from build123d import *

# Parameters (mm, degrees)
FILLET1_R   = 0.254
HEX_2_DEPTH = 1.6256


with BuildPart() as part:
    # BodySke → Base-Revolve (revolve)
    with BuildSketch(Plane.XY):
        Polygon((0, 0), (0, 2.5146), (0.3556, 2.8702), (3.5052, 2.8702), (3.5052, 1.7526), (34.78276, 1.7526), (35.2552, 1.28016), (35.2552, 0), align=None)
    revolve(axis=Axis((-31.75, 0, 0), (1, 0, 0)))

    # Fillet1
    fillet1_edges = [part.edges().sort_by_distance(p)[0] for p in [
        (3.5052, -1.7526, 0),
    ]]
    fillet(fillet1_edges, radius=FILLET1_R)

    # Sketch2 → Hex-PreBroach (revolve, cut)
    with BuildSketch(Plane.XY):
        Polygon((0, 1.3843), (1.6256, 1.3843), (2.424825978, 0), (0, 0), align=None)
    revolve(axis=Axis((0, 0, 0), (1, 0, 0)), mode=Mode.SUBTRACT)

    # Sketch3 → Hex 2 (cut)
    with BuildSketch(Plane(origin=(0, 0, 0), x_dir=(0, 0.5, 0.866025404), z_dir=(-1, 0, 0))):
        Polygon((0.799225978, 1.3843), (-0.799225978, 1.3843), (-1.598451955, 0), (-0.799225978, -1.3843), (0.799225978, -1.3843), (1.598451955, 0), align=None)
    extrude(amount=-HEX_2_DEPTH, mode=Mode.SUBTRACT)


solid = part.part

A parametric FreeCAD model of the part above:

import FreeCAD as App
import Part
import Sketcher
Q = App.Units.Quantity


def edges_at(feature, points):
    """Names of the edges that pass closest to the given points."""
    edges = feature.Shape.Edges
    near = lambda p: min(range(len(edges)), key=lambda i: edges[i].distToShape(Part.Vertex(*p))[0])
    return sorted({f"Edge{near(p) + 1}" for p in points})

doc = App.newDocument("Part")
body = doc.addObject("PartDesign::Body", "Body")

# Sketch on XY plane
sketch1 = body.newObject("Sketcher::SketchObject", "Sketch")
sketch1.AttachmentSupport = (doc.getObject("XY_Plane"), [""])
sketch1.MapMode = "FlatFace"
sketch1.addGeometry(Part.LineSegment(App.Vector(0, 2.5, 0), App.Vector(0, 0, 0)), False)
sketch1.addGeometry(Part.LineSegment(App.Vector(0, 0, 0), App.Vector(35.3, 0, 0)), False)
sketch1.addGeometry(Part.LineSegment(App.Vector(35.3, 0, 0), App.Vector(35.3, 1.3, 0)), False)
sketch1.addGeometry(Part.LineSegment(App.Vector(35.3, 1.3, 0), App.Vector(34.8, 1.8, 0)), False)
sketch1.addGeometry(Part.LineSegment(App.Vector(34.8, 1.8, 0), App.Vector(3.5, 1.8, 0)), False)
sketch1.addGeometry(Part.LineSegment(App.Vector(3.5, 1.8, 0), App.Vector(3.5, 2.9, 0)), False)
sketch1.addGeometry(Part.LineSegment(App.Vector(3.5, 2.9, 0), App.Vector(0.4, 2.9, 0)), False)
sketch1.addGeometry(Part.LineSegment(App.Vector(0.4, 2.9, 0), App.Vector(0, 2.5, 0)), False)
sketch1.addConstraint(Sketcher.Constraint("Coincident", 0, 2, 1, 1))
sketch1.addConstraint(Sketcher.Constraint("Coincident", 1, 2, 2, 1))
sketch1.addConstraint(Sketcher.Constraint("Coincident", 2, 2, 3, 1))
sketch1.addConstraint(Sketcher.Constraint("Coincident", 3, 2, 4, 1))
sketch1.addConstraint(Sketcher.Constraint("Coincident", 4, 2, 5, 1))
sketch1.addConstraint(Sketcher.Constraint("Coincident", 5, 2, 6, 1))
sketch1.addConstraint(Sketcher.Constraint("Coincident", 6, 2, 7, 1))
sketch1.addConstraint(Sketcher.Constraint("Coincident", 7, 2, 0, 1))
sketch1.addConstraint(Sketcher.Constraint("Vertical", 0))
sketch1.addConstraint(Sketcher.Constraint("Horizontal", 1))
sketch1.addConstraint(Sketcher.Constraint("Vertical", 2))
sketch1.addConstraint(Sketcher.Constraint("Horizontal", 4))
sketch1.addConstraint(Sketcher.Constraint("Vertical", 5))
sketch1.addConstraint(Sketcher.Constraint("Horizontal", 6))
sketch1.addConstraint(Sketcher.Constraint("Coincident", 0, 2, -1, 1))
sketch1.addConstraint(Sketcher.Constraint("Perpendicular", 3, 7))
sketch1.addConstraint(Sketcher.Constraint("Angle", 3, Q("135 deg")))
sketch1.addConstraint(Sketcher.Constraint("DistanceX", 1, 1, 1, 2, Q("1.388 in")))
sketch1.addConstraint(Sketcher.Constraint("DistanceX", 6, 2, 6, 1, Q("0.124 in")))
sketch1.addConstraint(Sketcher.Constraint("DistanceY", 0, 2, 0, 1, Q("0.099 in")))
sketch1.addConstraint(Sketcher.Constraint("DistanceY", 5, 1, 5, 2, Q("0.044 in")))
sketch1.addConstraint(Sketcher.Constraint("DistanceX", 4, 2, 2, 2, Q("1.25 in")))
sketch1.addConstraint(Sketcher.Constraint("DistanceX", 4, 2, 4, 1, Q("1.2314 in")))
revolution = body.newObject("PartDesign::Revolution", "Revolution")
revolution.Profile = sketch1
revolution.ReferenceAxis = (sketch1, ["H_Axis"])
revolution.Angle = 360
doc.recompute()

fillet = body.newObject("PartDesign::Fillet", "Fillet")
fillet.Base = (revolution, edges_at(revolution, [(3.505, -1.753, 0)]))
fillet.Radius = Q("0.01 in")

# Sketch on XY plane
sketch2 = body.newObject("Sketcher::SketchObject", "Sketch001")
sketch2.AttachmentSupport = (doc.getObject("XY_Plane"), [""])
sketch2.MapMode = "FlatFace"
sketch2.addGeometry(Part.LineSegment(App.Vector(1.6, 1.4, 0), App.Vector(0, 1.4, 0)), False)
sketch2.addGeometry(Part.LineSegment(App.Vector(0, 1.4, 0), App.Vector(0, 0, 0)), False)
sketch2.addGeometry(Part.LineSegment(App.Vector(0, 0, 0), App.Vector(2.4, 0, 0)), False)
sketch2.addGeometry(Part.LineSegment(App.Vector(2.4, 0, 0), App.Vector(1.6, 1.4, 0)), False)
sketch2.addConstraint(Sketcher.Constraint("Coincident", 0, 2, 1, 1))
sketch2.addConstraint(Sketcher.Constraint("Coincident", 1, 2, 2, 1))
sketch2.addConstraint(Sketcher.Constraint("Coincident", 2, 2, 3, 1))
sketch2.addConstraint(Sketcher.Constraint("Coincident", 3, 2, 0, 1))
sketch2.addConstraint(Sketcher.Constraint("Horizontal", 0))
sketch2.addConstraint(Sketcher.Constraint("Vertical", 1))
sketch2.addConstraint(Sketcher.Constraint("Horizontal", 2))
sketch2.addConstraint(Sketcher.Constraint("Coincident", 1, 2, -1, 1))
sketch2.addConstraint(Sketcher.Constraint("Angle", 3, Q("120 deg")))
sketch2.addConstraint(Sketcher.Constraint("DistanceX", 0, 2, 0, 1, Q("0.064 in")))
sketch2.addConstraint(Sketcher.Constraint("DistanceY", 1, 2, 1, 1, Q("0.0545 in")))
groove = body.newObject("PartDesign::Groove", "Groove")
groove.Profile = sketch2
groove.ReferenceAxis = (sketch2, ["H_Axis"])
groove.Angle = 360

# Sketch on YZ plane
sketch3 = body.newObject("Sketcher::SketchObject", "Sketch002")
sketch3.AttachmentSupport = (doc.getObject("YZ_Plane"), [""])
sketch3.MapMode = "FlatFace"
sketch3.addGeometry(Part.LineSegment(App.Vector(1.6, 0, 0), App.Vector(0.8, -1.4, 0)), False)
sketch3.addGeometry(Part.LineSegment(App.Vector(0.8, -1.4, 0), App.Vector(-0.8, -1.4, 0)), False)
sketch3.addGeometry(Part.LineSegment(App.Vector(-0.8, -1.4, 0), App.Vector(-1.6, 0, 0)), False)
sketch3.addGeometry(Part.LineSegment(App.Vector(-1.6, 0, 0), App.Vector(-0.8, 1.4, 0)), False)
sketch3.addGeometry(Part.LineSegment(App.Vector(-0.8, 1.4, 0), App.Vector(0.8, 1.4, 0)), False)
sketch3.addGeometry(Part.LineSegment(App.Vector(0.8, 1.4, 0), App.Vector(1.6, 0, 0)), False)
sketch3.addConstraint(Sketcher.Constraint("Coincident", 0, 2, 1, 1))
sketch3.addConstraint(Sketcher.Constraint("Coincident", 1, 2, 2, 1))
sketch3.addConstraint(Sketcher.Constraint("Coincident", 2, 2, 3, 1))
sketch3.addConstraint(Sketcher.Constraint("Coincident", 3, 2, 4, 1))
sketch3.addConstraint(Sketcher.Constraint("Coincident", 4, 2, 5, 1))
sketch3.addConstraint(Sketcher.Constraint("Coincident", 5, 2, 0, 1))
sketch3.addConstraint(Sketcher.Constraint("Horizontal", 1))
sketch3.addConstraint(Sketcher.Constraint("Horizontal", 4))
sketch3.addConstraint(Sketcher.Constraint("Symmetric", 0, 2, 3, 2, -1, 1))
sketch3.addConstraint(Sketcher.Constraint("Symmetric", 2, 2, 5, 2, -1, 1))
sketch3.addConstraint(Sketcher.Constraint("PointOnObject", 2, 2, -1))
sketch3.addConstraint(Sketcher.Constraint("Parallel", 2, 5))
sketch3.addConstraint(Sketcher.Constraint("Vertical", 1, 2, 3, 2))
sketch3.addConstraint(Sketcher.Constraint("Angle", 0, Q("-120 deg")))
sketch3.addConstraint(Sketcher.Constraint("DistanceY", 1, 2, 3, 2, Q("0.109 in")))
sketch3.addConstraint(Sketcher.Constraint("DistanceX", 1, 2, 1, 1, 1.598452))
pocket1 = body.newObject("PartDesign::Pocket", "Pocket")
pocket1.Profile = sketch3
pocket1.Length = Q("0.064 in")
pocket1.Reversed = True

doc.recompute()
